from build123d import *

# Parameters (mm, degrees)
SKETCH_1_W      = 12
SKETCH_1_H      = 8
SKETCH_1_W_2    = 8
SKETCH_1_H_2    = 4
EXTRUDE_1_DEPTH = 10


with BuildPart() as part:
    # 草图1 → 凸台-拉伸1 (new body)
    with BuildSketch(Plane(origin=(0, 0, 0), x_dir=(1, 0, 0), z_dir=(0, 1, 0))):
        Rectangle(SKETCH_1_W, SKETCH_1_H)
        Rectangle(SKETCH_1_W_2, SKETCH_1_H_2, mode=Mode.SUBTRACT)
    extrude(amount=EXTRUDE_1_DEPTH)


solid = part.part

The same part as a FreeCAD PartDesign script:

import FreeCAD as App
import Part
import Sketcher
from FreeCAD import Vector


def add_polygon(sketch, points):
    """Adds a closed chain of lines whose ends are joined by coincident constraints."""
    first, n = sketch.GeometryCount, len(points)
    for a, b in zip(points, points[1:] + points[:1]):
        sketch.addGeometry(Part.LineSegment(App.Vector(*a, 0), App.Vector(*b, 0)), False)
    for i in range(n):
        sketch.addConstraint(Sketcher.Constraint("Coincident", first + i, 2, first + (i + 1) % n, 1))

doc = App.newDocument("Part")
body = doc.addObject("PartDesign::Body", "Body")

# Sketch on XZ plane
sketch1 = doc.addObject("Sketcher::SketchObject", "Sketch")
body.addObject(sketch1)
sketch1.AttachmentSupport = (doc.XZ_Plane, [""])
sketch1.MapMode = "FlatFace"
add_polygon(sketch1, [(-6, -4), (-6, 4), (6, 4), (6, -4)])  # lines 0-3
add_polygon(sketch1, [(4, 2), (-4, 2), (-4, -2), (4, -2)])  # lines 4-7
sketch1.addConstraint(Sketcher.Constraint("Vertical", 0))
sketch1.addConstraint(Sketcher.Constraint("Horizontal", 1))
sketch1.addConstraint(Sketcher.Constraint("Vertical", 2))
sketch1.addConstraint(Sketcher.Constraint("Horizontal", 3))
sketch1.addConstraint(Sketcher.Constraint("Horizontal", 4))
sketch1.addConstraint(Sketcher.Constraint("Vertical", 5))
sketch1.addConstraint(Sketcher.Constraint("Horizontal", 6))
sketch1.addConstraint(Sketcher.Constraint("Vertical", 7))
sketch1.addConstraint(Sketcher.Constraint("Symmetric", 0, 2, 2, 2, -1, 1))
sketch1.addConstraint(Sketcher.Constraint("Symmetric", 4, 2, 6, 2, -1, 1))
sketch1.addConstraint(Sketcher.Constraint("Equal", 6, 0))
sketch1.addConstraint(Sketcher.Constraint("DistanceX", 1, 1, 1, 2, 12.0))
sketch1.addConstraint(Sketcher.Constraint("DistanceX", 4, 2, 4, 1, 8.0))
sketch1.addConstraint(Sketcher.Constraint("DistanceY", 5, 2, 5, 1, 4.0))
pad1 = doc.addObject("PartDesign::Pad", "Pad")
body.addObject(pad1)
pad1.Profile = sketch1
pad1.Length = 10
pad1.Reversed = True

doc.recompute()
